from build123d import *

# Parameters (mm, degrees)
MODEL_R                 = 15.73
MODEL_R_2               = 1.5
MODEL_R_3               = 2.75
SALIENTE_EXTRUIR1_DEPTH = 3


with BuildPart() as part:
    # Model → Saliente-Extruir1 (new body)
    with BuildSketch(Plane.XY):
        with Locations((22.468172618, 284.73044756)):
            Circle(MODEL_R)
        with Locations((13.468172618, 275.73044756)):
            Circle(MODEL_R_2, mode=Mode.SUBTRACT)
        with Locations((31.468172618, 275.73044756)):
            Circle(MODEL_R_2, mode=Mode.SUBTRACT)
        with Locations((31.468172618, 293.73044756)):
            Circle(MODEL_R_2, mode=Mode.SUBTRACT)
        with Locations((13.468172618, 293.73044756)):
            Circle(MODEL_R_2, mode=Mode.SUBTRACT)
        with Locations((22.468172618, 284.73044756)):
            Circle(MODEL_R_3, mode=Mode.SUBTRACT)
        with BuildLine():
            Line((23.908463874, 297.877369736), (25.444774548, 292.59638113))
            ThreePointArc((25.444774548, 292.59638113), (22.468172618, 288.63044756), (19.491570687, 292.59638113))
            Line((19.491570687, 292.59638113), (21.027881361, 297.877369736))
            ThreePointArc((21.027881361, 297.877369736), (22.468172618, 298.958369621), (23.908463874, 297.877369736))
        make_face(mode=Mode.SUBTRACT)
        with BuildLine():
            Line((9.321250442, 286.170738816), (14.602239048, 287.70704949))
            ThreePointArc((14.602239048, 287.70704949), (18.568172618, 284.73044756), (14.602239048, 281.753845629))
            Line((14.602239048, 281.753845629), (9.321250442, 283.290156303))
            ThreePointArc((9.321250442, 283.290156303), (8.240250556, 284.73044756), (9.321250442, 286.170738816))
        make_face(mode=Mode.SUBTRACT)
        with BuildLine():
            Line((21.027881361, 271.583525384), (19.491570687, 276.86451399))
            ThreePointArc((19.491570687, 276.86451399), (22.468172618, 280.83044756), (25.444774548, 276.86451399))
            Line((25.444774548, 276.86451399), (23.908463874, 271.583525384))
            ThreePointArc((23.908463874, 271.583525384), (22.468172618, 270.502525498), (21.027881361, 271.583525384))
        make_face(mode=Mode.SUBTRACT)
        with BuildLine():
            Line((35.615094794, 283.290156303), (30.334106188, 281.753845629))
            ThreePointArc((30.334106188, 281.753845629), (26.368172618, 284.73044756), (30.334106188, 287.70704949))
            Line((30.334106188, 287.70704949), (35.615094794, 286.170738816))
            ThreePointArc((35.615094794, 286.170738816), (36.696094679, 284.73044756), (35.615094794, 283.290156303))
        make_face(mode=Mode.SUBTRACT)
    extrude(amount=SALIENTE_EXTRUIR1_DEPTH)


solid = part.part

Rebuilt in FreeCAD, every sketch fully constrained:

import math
import FreeCAD as App
import Part
import Sketcher

V = App.Vector
Q = App.Units.Quantity

doc = App.newDocument("Part")
params = doc.addObject("Spreadsheet::Sheet", "Params")
for row, (alias, value) in enumerate([
    ("sketch1_diameter", "3 mm"),
    ("sketch1_diameter2", "5.5 mm"),
    ("sketch1_radius", "3.1 mm"),
    ("sketch1_diameter3", "31.46 mm"),
    ("pad1_length", "3 mm"),
], start=1):
    params.set(f"A{row}", alias)
    params.set(f"B{row}", "=" + value)
    params.setAlias(f"B{row}", alias)

body = doc.addObject("PartDesign::Body", "Body")

sketch1 = body.newObject("Sketcher::SketchObject", "Sketch")
sketch1.AttachmentSupport = (doc.getObject("XY_Plane"), [""])
sketch1.MapMode = "FlatFace"
sketch1.addGeometry([
    Part.Circle(V(22.468173, 284.730448, 0), V(0, 0, 1), 15.73),
    Part.Circle(V(13.468173, 275.730448, 0), V(0, 0, 1), 1.5),
    Part.ArcOfCircle(Part.Circle(V(22.468173, 272.002525, 0), V(0, 0, 1), 1.5), math.radians(-163.779575), math.radians(-16.220425)),
    Part.LineSegment(V(21.027881, 271.583525, 0), V(19.491571, 276.864514, 0)),
    Part.ArcOfCircle(Part.Circle(V(22.468173, 277.730448, 0), V(0, 0, 1), 3.1), math.radians(-16.220425), math.radians(196.220425)),
    Part.LineSegment(V(25.444775, 276.864514, 0), V(23.908464, 271.583525, 0)),
    Part.Circle(V(31.468173, 275.730448, 0), V(0, 0, 1), 1.5),
    Part.ArcOfCircle(Part.Circle(V(9.740251, 284.730448, 0), V(0, 0, 1), 1.5), math.radians(106.220425), math.radians(253.779575)),
    Part.LineSegment(V(9.32125, 286.170739, 0), V(14.602239, 287.707049, 0)),
    Part.ArcOfCircle(Part.Circle(V(15.468173, 284.730448, 0), V(0, 0, 1), 3.1), math.radians(-106.220425), math.radians(106.220425)),
    Part.LineSegment(V(14.602239, 281.753846, 0), V(9.32125, 283.290156, 0)),
    Part.Circle(V(13.468173, 293.730448, 0), V(0, 0, 1), 1.5),
    Part.Circle(V(22.468173, 284.730448, 0), V(0, 0, 1), 2.75),
    Part.ArcOfCircle(Part.Circle(V(35.196095, 284.730448, 0), V(0, 0, 1), 1.5), math.radians(-73.779575), math.radians(73.779575)),
    Part.LineSegment(V(35.615095, 283.290156, 0), V(30.334106, 281.753846, 0)),
    Part.ArcOfCircle(Part.Circle(V(29.468173, 284.730448, 0), V(0, 0, 1), 3.1), math.radians(73.779575), math.radians(286.220425)),
    Part.LineSegment(V(30.334106, 287.707049, 0), V(35.615095, 286.170739, 0)),
    Part.ArcOfCircle(Part.Circle(V(22.468173, 297.45837, 0), V(0, 0, 1), 1.5), math.radians(16.220425), math.radians(163.779575)),
    Part.LineSegment(V(23.908464, 297.87737, 0), V(25.444775, 292.596381, 0)),
    Part.ArcOfCircle(Part.Circle(V(22.468173, 291.730448, 0), V(0, 0, 1), 3.1), math.radians(163.779575), math.radians(376.220425)),
    Part.LineSegment(V(19.491571, 292.596381, 0), V(21.027881, 297.87737, 0)),
    Part.Circle(V(31.468173, 293.730448, 0), V(0, 0, 1), 1.5),
], False)
sketch1.addConstraint([
    Sketcher.Constraint("Tangent", 2, 1, 3, 1),
    Sketcher.Constraint("Tangent", 3, 2, 4, 2),
    Sketcher.Constraint("Tangent", 4, 1, 5, 1),
    Sketcher.Constraint("Tangent", 5, 2, 2, 2),
    Sketcher.Constraint("Tangent", 7, 1, 8, 1),
    Sketcher.Constraint("Tangent", 8, 2, 9, 2),
    Sketcher.Constraint("Tangent", 9, 1, 10, 1),
    Sketcher.Constraint("Tangent", 10, 2, 7, 2),
    Sketcher.Constraint("Tangent", 13, 1, 14, 1),
    Sketcher.Constraint("Tangent", 14, 2, 15, 2),
    Sketcher.Constraint("Tangent", 15, 1, 16, 1),
    Sketcher.Constraint("Tangent", 16, 2, 13, 2),
    Sketcher.Constraint("Tangent", 17, 1, 18, 1),
    Sketcher.Constraint("Tangent", 18, 2, 19, 2),
    Sketcher.Constraint("Tangent", 19, 1, 20, 1),
    Sketcher.Constraint("Tangent", 20, 2, 17, 2),
    Sketcher.Constraint("Coincident", 12, 3, 0, 3),
    Sketcher.Constraint("Equal", 1, 2),
    Sketcher.Constraint("Equal", 2, 6),
    Sketcher.Constraint("Equal", 6, 7),
    Sketcher.Constraint("Equal", 4, 9),
    Sketcher.Constraint("Equal", 7, 11),
    Sketcher.Constraint("Equal", 11, 13),
    Sketcher.Constraint("Equal", 9, 15),
    Sketcher.Constraint("Equal", 13, 17),
    Sketcher.Constraint("Equal", 15, 19),
    Sketcher.Constraint("Equal", 17, 21),
    Sketcher.Constraint("Perpendicular", 3, 8),
    Sketcher.Constraint("Perpendicular", 5, 10),
    Sketcher.Constraint("Parallel", 8, 14),
    Sketcher.Constraint("Parallel", 10, 16),
    Sketcher.Constraint("Perpendicular", 14, 18),
    Sketcher.Constraint("Perpendicular", 16, 20),
    Sketcher.Constraint("Horizontal", 1, 3, 6, 3),
    Sketcher.Constraint("Horizontal", 0, 3, 7, 3),
    Sketcher.Constraint("Horizontal", 7, 3, 9, 3),
    Sketcher.Constraint("Horizontal", 12, 3, 13, 3),
    Sketcher.Constraint("Horizontal", 11, 3, 21, 3),
    Sketcher.Constraint("Vertical", 0, 3, 2, 3),
    Sketcher.Constraint("Vertical", 1, 3, 11, 3),
    Sketcher.Constraint("Vertical", 12, 3, 17, 3),
    Sketcher.Constraint("Vertical", 6, 3, 21, 3),
    Sketcher.Constraint("Diameter", 1, Q("3 mm")),
    Sketcher.Constraint("Diameter", 12, Q("5.5 mm")),
    Sketcher.Constraint("Radius", 4, Q("3.1 mm")),
    Sketcher.Constraint("Diameter", 0, Q("31.46 mm")),
    Sketcher.Constraint("DistanceX", 1, 3, 0, 3, Q("9 mm")),
    Sketcher.Constraint("DistanceY", 1, 3, 0, 3, Q("9 mm")),
    Sketcher.Constraint("DistanceY", 4, 3, 0, 3, Q("7 mm")),
    Sketcher.Constraint("DistanceX", 4, 3, 6, 3, Q("9 mm")),
    Sketcher.Constraint("DistanceX", 9, 3, 0, 3, Q("7 mm")),
    Sketcher.Constraint("DistanceY", 9, 3, 11, 3, Q("9 mm")),
    Sketcher.Constraint("DistanceX", 0, 3, 15, 3, Q("7 mm")),
    Sketcher.Constraint("DistanceY", 0, 3, 19, 3, Q("7 mm")),
    Sketcher.Constraint("DistanceY", 2, 1, 2, 3, Q("0.419 mm")),
    Sketcher.Constraint("DistanceX", -1, 1, 7, 3, Q("9.740251 mm")),
    Sketcher.Constraint("DistanceY", -1, 1, 17, 3, Q("297.45837 mm")),
])
sketch1.setExpression("Constraints[42]", "Params.sketch1_diameter")
sketch1.setExpression("Constraints[43]", "Params.sketch1_diameter2")
sketch1.setExpression("Constraints[44]", "Params.sketch1_radius")
sketch1.setExpression("Constraints[45]", "Params.sketch1_diameter3")
pad1 = body.newObject("PartDesign::Pad", "Pad")
pad1.Profile = sketch1
pad1.setExpression("Length", "Params.pad1_length")

doc.recompute()
